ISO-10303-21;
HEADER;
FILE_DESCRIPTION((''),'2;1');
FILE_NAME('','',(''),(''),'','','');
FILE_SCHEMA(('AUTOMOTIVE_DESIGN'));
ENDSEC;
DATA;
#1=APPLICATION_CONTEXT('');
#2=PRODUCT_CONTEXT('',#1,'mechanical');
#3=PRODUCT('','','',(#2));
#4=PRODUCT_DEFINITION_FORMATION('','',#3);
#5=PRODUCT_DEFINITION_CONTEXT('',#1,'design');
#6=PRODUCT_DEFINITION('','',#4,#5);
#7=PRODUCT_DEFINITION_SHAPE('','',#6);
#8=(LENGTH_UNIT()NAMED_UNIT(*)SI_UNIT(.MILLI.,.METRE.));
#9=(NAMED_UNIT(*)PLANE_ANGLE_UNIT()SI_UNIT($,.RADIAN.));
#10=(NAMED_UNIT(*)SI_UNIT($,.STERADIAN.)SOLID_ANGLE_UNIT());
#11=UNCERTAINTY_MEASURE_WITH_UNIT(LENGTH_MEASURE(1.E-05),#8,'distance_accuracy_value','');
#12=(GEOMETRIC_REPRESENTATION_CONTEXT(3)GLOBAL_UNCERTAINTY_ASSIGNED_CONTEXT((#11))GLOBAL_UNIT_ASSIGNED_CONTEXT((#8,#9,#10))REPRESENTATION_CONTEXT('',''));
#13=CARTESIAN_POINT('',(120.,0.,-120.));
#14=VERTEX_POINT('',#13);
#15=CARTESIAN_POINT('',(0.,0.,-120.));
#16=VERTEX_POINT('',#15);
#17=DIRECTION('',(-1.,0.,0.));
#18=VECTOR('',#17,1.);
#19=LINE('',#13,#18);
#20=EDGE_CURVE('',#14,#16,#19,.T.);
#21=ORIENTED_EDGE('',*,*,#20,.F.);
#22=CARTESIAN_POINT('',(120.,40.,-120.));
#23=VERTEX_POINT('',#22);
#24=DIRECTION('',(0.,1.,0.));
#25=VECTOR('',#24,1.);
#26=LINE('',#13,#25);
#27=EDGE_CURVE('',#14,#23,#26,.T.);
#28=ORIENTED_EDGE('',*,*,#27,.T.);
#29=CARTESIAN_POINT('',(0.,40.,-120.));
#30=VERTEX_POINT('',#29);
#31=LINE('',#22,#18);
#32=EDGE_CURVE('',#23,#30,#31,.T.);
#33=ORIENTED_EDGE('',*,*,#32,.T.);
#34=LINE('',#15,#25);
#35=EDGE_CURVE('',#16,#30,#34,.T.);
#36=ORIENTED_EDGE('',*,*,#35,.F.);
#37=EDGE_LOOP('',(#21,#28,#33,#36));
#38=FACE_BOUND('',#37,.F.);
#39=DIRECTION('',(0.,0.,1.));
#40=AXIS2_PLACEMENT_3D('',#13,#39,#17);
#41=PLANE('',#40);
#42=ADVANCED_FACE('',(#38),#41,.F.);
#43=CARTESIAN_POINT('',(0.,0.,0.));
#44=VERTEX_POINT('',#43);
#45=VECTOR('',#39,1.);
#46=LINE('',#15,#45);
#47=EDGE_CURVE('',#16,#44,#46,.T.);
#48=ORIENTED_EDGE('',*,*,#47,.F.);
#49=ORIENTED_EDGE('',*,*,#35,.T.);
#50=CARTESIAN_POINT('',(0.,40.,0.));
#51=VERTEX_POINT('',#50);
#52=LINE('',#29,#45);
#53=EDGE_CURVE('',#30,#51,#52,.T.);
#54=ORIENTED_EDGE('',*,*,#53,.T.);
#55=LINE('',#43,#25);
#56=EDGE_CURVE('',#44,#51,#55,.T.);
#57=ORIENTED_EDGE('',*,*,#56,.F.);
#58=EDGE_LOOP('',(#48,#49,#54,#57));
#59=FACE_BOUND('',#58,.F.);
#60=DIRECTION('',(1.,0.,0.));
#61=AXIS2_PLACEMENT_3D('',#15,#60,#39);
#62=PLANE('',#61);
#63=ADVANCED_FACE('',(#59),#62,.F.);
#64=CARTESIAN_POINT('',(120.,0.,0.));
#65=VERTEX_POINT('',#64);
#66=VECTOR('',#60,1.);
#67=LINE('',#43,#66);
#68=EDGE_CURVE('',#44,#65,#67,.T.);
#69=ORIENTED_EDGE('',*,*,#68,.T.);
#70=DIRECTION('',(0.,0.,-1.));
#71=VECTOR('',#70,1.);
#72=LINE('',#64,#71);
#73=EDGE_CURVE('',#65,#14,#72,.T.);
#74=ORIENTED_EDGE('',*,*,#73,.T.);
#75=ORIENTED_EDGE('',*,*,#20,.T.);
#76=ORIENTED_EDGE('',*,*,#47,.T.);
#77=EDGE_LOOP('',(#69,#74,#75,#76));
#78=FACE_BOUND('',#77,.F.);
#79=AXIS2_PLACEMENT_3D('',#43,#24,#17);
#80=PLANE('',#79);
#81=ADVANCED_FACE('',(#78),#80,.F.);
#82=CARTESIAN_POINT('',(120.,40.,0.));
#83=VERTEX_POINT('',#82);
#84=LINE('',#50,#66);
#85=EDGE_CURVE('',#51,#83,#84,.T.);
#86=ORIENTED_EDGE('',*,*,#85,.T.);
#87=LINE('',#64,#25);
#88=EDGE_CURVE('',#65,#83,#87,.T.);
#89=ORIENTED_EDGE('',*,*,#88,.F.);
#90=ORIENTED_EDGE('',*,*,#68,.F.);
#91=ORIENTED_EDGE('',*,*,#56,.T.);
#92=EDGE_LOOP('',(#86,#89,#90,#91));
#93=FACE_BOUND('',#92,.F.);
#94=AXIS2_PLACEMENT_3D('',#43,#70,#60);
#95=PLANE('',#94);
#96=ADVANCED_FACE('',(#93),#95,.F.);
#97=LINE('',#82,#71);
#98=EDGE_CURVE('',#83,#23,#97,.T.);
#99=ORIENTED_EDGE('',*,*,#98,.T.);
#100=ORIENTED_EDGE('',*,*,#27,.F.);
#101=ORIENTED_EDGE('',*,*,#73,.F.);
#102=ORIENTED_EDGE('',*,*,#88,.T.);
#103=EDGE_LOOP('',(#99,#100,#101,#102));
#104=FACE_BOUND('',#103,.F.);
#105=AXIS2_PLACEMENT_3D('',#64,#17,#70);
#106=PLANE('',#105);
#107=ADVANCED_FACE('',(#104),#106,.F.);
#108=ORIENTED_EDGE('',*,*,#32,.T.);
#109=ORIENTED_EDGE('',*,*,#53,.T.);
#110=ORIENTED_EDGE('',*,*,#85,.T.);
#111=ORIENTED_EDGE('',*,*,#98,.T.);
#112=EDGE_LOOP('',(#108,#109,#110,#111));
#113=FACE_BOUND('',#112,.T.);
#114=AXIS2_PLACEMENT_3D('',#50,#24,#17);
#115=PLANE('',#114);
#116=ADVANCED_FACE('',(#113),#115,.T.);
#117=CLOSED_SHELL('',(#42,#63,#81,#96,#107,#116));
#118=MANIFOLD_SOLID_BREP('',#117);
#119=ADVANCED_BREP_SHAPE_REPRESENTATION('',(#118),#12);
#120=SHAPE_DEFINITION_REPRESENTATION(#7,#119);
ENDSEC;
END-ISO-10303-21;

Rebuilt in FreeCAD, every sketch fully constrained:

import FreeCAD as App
import Part
import Sketcher
Q = App.Units.Quantity

doc = App.newDocument("Part")
body = doc.addObject("PartDesign::Body", "Body")

# Sketch on XZ plane
sketch1 = body.newObject("Sketcher::SketchObject", "Sketch")
sketch1.AttachmentSupport = (doc.getObject("XZ_Plane"), [""])
sketch1.MapMode = "FlatFace"
sketch1.addGeometry([
    Part.LineSegment(App.Vector(0, -120, 0), App.Vector(0, 0, 0)),
    Part.LineSegment(App.Vector(0, 0, 0), App.Vector(120, 0, 0)),
    Part.LineSegment(App.Vector(120, 0, 0), App.Vector(120, -120, 0)),
    Part.LineSegment(App.Vector(120, -120, 0), App.Vector(0, -120, 0)),
], False)
sketch1.addConstraint([
    Sketcher.Constraint("Coincident", 0, 2, 1, 1),
    Sketcher.Constraint("Coincident", 1, 2, 2, 1),
    Sketcher.Constraint("Coincident", 2, 2, 3, 1),
    Sketcher.Constraint("Coincident", 3, 2, 0, 1),
    Sketcher.Constraint("Vertical", 0),
    Sketcher.Constraint("Horizontal", 1),
    Sketcher.Constraint("Vertical", 2),
    Sketcher.Constraint("Horizontal", 3),
    Sketcher.Constraint("Coincident", 0, 2, -1, 1),
    Sketcher.Constraint("Equal", 3, 0),
    Sketcher.Constraint("DistanceX", 1, 1, 1, 2, Q("120 mm")),
])
pad1 = body.newObject("PartDesign::Pad", "Pad")
pad1.Profile = sketch1
pad1.Length = 40
pad1.Reversed = True

doc.recompute()
